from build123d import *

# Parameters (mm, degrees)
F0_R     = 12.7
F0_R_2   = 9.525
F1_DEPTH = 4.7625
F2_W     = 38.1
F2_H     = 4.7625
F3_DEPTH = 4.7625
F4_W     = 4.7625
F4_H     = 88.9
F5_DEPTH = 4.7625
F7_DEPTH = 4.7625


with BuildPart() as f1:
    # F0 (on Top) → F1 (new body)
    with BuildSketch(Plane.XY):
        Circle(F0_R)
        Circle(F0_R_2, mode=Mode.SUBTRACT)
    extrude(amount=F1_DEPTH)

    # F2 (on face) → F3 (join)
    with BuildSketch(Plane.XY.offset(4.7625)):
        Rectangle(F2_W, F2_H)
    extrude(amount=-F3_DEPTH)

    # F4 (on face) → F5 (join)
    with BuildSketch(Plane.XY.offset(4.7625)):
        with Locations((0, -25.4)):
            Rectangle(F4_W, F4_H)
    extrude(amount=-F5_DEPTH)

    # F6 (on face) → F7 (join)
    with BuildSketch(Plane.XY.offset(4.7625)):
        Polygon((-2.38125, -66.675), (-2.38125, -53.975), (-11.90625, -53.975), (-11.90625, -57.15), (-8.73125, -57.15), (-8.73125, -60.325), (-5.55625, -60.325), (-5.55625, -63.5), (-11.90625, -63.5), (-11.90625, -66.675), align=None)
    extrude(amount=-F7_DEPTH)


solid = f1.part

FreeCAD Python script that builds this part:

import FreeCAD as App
import Part
import Sketcher
Q = App.Units.Quantity


def add_polygon(sketch, points):
    """Adds a closed chain of lines whose ends are joined by coincident constraints."""
    first, n = sketch.GeometryCount, len(points)
    for a, b in zip(points, points[1:] + points[:1]):
        sketch.addGeometry(Part.LineSegment(App.Vector(*a, 0), App.Vector(*b, 0)), False)
    for i in range(n):
        sketch.addConstraint(Sketcher.Constraint("Coincident", first + i, 2, first + (i + 1) % n, 1))

doc = App.newDocument("Part")
body = doc.addObject("PartDesign::Body", "Body")

# Sketch on XY plane
sketch1 = doc.addObject("Sketcher::SketchObject", "Sketch")
body.addObject(sketch1)
sketch1.AttachmentSupport = (doc.XY_Plane, [""])
sketch1.MapMode = "FlatFace"
sketch1.addGeometry(Part.Circle(App.Vector(0, 0, 0), App.Vector(0, 0, 1), 13), False)
sketch1.addGeometry(Part.Circle(App.Vector(0, 0, 0), App.Vector(0, 0, 1), 10), False)
sketch1.addConstraint(Sketcher.Constraint("Coincident", 0, 3, -1, 1))
sketch1.addConstraint(Sketcher.Constraint("Coincident", 1, 3, -1, 1))
sketch1.addConstraint(Sketcher.Constraint("Diameter", 0, Q("1 in")))
sketch1.addConstraint(Sketcher.Constraint("Diameter", 1, Q("0.75 in")))
pad1 = doc.addObject("PartDesign::Pad", "Pad")
body.addObject(pad1)
pad1.Profile = sketch1
pad1.Length = Q("0.1875 in")

# Sketch on XY plane
sketch2 = doc.addObject("Sketcher::SketchObject", "Sketch001")
body.addObject(sketch2)
sketch2.AttachmentSupport = (doc.XY_Plane, [""])
sketch2.MapMode = "FlatFace"
sketch2.AttachmentOffset = App.Placement(App.Vector(0, 0, 0.1875 * 25.4), App.Rotation())
add_polygon(sketch2, [(-19.1, 2.4), (-19.1, -2.4), (19.1, -2.4), (19.1, 2.4)])  # lines 0-3
sketch2.addConstraint(Sketcher.Constraint("Vertical", 0))
sketch2.addConstraint(Sketcher.Constraint("Horizontal", 1))
sketch2.addConstraint(Sketcher.Constraint("Vertical", 2))
sketch2.addConstraint(Sketcher.Constraint("Horizontal", 3))
sketch2.addConstraint(Sketcher.Constraint("Symmetric", 0, 2, 2, 2, -1, 1))
sketch2.addConstraint(Sketcher.Constraint("DistanceX", 1, 1, 1, 2, Q("1.5 in")))
sketch2.addConstraint(Sketcher.Constraint("DistanceY", 0, 2, 0, 1, Q("0.1875 in")))
pad2 = doc.addObject("PartDesign::Pad", "Pad001")
body.addObject(pad2)
pad2.Profile = sketch2
pad2.Length = Q("0.1875 in")
pad2.Reversed = True

# Sketch on XY plane
sketch3 = doc.addObject("Sketcher::SketchObject", "Sketch002")
body.addObject(sketch3)
sketch3.AttachmentSupport = (doc.XY_Plane, [""])
sketch3.MapMode = "FlatFace"
sketch3.AttachmentOffset = App.Placement(App.Vector(0, 0, 0.1875 * 25.4), App.Rotation())
add_polygon(sketch3, [(-2.4, 19.1), (-2.4, -69.8), (2.4, -69.8), (2.4, 19.1)])  # lines 0-3
sketch3.addConstraint(Sketcher.Constraint("Vertical", 0))
sketch3.addConstraint(Sketcher.Constraint("Horizontal", 1))
sketch3.addConstraint(Sketcher.Constraint("Vertical", 2))
sketch3.addConstraint(Sketcher.Constraint("Horizontal", 3))
sketch3.addConstraint(Sketcher.Constraint("DistanceY", 0, 2, 0, 1, Q("3.5 in")))
sketch3.addConstraint(Sketcher.Constraint("DistanceX", 1, 1, 1, 2, Q("0.1875 in")))
sketch3.addConstraint(Sketcher.Constraint("DistanceY", 0, 2, -1, 1, Q("2.75 in")))
sketch3.addConstraint(Sketcher.Constraint("DistanceX", 0, 2, -1, 1, Q("0.09375 in")))
pad3 = doc.addObject("PartDesign::Pad", "Pad002")
body.addObject(pad3)
pad3.Profile = sketch3
pad3.Length = Q("0.1875 in")
pad3.Reversed = True

# Sketch on XY plane
sketch4 = doc.addObject("Sketcher::SketchObject", "Sketch003")
body.addObject(sketch4)
sketch4.AttachmentSupport = (doc.XY_Plane, [""])
sketch4.MapMode = "FlatFace"
sketch4.AttachmentOffset = App.Placement(App.Vector(0, 0, 0.1875 * 25.4), App.Rotation())
add_polygon(sketch4, [(-2.4, -66.7), (-2.4, -54), (-11.9, -54), (-11.9, -57.1), (-8.7, -57.1), (-8.7, -60.3), (-5.6, -60.3), (-5.6, -63.5), (-11.9, -63.5), (-11.9, -66.7)])  # lines 0-9
sketch4.addConstraint(Sketcher.Constraint("Vertical", 0))
sketch4.addConstraint(Sketcher.Constraint("Horizontal", 1))
sketch4.addConstraint(Sketcher.Constraint("Vertical", 2))
sketch4.addConstraint(Sketcher.Constraint("Horizontal", 3))
sketch4.addConstraint(Sketcher.Constraint("Vertical", 4))
sketch4.addConstraint(Sketcher.Constraint("Horizontal", 5))
sketch4.addConstraint(Sketcher.Constraint("Vertical", 6))
sketch4.addConstraint(Sketcher.Constraint("Horizontal", 7))
sketch4.addConstraint(Sketcher.Constraint("Vertical", 8))
sketch4.addConstraint(Sketcher.Constraint("Horizontal", 9))
sketch4.addConstraint(Sketcher.Constraint("Vertical", 2, 2, 7, 2))
sketch4.addConstraint(Sketcher.Constraint("Equal", 3, 5))
sketch4.addConstraint(Sketcher.Constraint("Equal", 5, 2))
sketch4.addConstraint(Sketcher.Constraint("Equal", 2, 4))
sketch4.addConstraint(Sketcher.Constraint("Equal", 4, 6))
sketch4.addConstraint(Sketcher.Constraint("Equal", 6, 8))
sketch4.addConstraint(Sketcher.Constraint("DistanceY", 0, 1, 0, 2, Q("0.5 in")))
sketch4.addConstraint(Sketcher.Constraint("DistanceY", 6, 2, -1, 1, Q("2.5 in")))
sketch4.addConstraint(Sketcher.Constraint("DistanceX", 1, 2, 1, 1, Q("0.375 in")))
sketch4.addConstraint(Sketcher.Constraint("DistanceX", 0, 2, -1, 1, Q("0.09375 in")))
pad4 = doc.addObject("PartDesign::Pad", "Pad003")
body.addObject(pad4)
pad4.Profile = sketch4
pad4.Length = Q("0.1875 in")
pad4.Reversed = True

doc.recompute()
